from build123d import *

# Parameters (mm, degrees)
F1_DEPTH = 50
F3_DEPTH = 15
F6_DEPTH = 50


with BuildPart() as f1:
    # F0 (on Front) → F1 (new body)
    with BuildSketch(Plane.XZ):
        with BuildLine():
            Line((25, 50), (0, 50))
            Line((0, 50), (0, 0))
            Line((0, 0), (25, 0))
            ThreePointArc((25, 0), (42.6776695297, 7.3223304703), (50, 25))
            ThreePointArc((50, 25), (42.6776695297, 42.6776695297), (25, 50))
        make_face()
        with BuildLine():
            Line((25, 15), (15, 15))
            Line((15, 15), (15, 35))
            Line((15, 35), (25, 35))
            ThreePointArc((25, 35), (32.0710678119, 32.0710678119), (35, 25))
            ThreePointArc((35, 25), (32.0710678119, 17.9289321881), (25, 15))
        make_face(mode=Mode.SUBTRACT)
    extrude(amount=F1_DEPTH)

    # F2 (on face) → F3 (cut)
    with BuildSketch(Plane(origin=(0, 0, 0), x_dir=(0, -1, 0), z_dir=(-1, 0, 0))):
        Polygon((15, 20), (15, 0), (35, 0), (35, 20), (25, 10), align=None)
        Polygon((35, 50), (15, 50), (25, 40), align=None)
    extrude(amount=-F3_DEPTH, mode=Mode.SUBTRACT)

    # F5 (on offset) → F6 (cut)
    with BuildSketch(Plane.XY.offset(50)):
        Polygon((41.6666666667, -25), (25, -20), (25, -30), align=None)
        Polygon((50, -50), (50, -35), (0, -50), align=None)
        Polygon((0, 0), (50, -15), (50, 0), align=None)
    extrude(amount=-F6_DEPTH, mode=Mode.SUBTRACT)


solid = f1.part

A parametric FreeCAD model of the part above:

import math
import FreeCAD as App
import Part
import Sketcher
from FreeCAD import Vector
Q = App.Units.Quantity


def add_polygon(sketch, points):
    """Adds a closed chain of lines whose ends are joined by coincident constraints."""
    first, n = sketch.GeometryCount, len(points)
    for a, b in zip(points, points[1:] + points[:1]):
        sketch.addGeometry(Part.LineSegment(App.Vector(*a, 0), App.Vector(*b, 0)), False)
    for i in range(n):
        sketch.addConstraint(Sketcher.Constraint("Coincident", first + i, 2, first + (i + 1) % n, 1))

doc = App.newDocument("Part")
body = doc.addObject("PartDesign::Body", "Body")

sketch1 = body.newObject("Sketcher::SketchObject", "Sketch")
sketch1.AttachmentSupport = (doc.getObject("XZ_Plane"), [""])
sketch1.MapMode = "FlatFace"
sketch1.addGeometry(Part.LineSegment(Vector(25, 50, 0), Vector(0, 50, 0)), False)
sketch1.addGeometry(Part.LineSegment(Vector(0, 50, 0), Vector(0, 0, 0)), False)
sketch1.addGeometry(Part.LineSegment(Vector(0, 0, 0), Vector(25, 0, 0)), False)
sketch1.addGeometry(Part.ArcOfCircle(Part.Circle(Vector(25, 25, 0), Vector(0, 0, 1), 25), math.radians(-90), math.radians(0)), False)
sketch1.addGeometry(Part.ArcOfCircle(Part.Circle(Vector(25, 25, 0), Vector(0, 0, 1), 25), math.radians(0), math.radians(90)), False)
sketch1.addGeometry(Part.ArcOfCircle(Part.Circle(Vector(25, 25, 0), Vector(0, 0, 1), 10), math.radians(-90), math.radians(0)), False)
sketch1.addGeometry(Part.LineSegment(Vector(25, 15, 0), Vector(15, 15, 0)), False)
sketch1.addGeometry(Part.LineSegment(Vector(15, 15, 0), Vector(15, 35, 0)), False)
sketch1.addGeometry(Part.LineSegment(Vector(15, 35, 0), Vector(25, 35, 0)), False)
sketch1.addGeometry(Part.ArcOfCircle(Part.Circle(Vector(25, 25, 0), Vector(0, 0, 1), 10), math.radians(0), math.radians(90)), False)
sketch1.addConstraint(Sketcher.Constraint("Coincident", 0, 2, 1, 1))
sketch1.addConstraint(Sketcher.Constraint("Coincident", 1, 2, 2, 1))
sketch1.addConstraint(Sketcher.Constraint("Tangent", 2, 2, 3, 1))
sketch1.addConstraint(Sketcher.Constraint("Tangent", 3, 2, 4, 1))
sketch1.addConstraint(Sketcher.Constraint("Tangent", 4, 2, 0, 1))
sketch1.addConstraint(Sketcher.Constraint("Tangent", 5, 1, 6, 1))
sketch1.addConstraint(Sketcher.Constraint("Coincident", 6, 2, 7, 1))
sketch1.addConstraint(Sketcher.Constraint("Coincident", 7, 2, 8, 1))
sketch1.addConstraint(Sketcher.Constraint("Tangent", 8, 2, 9, 2))
sketch1.addConstraint(Sketcher.Constraint("Tangent", 9, 1, 5, 2))
sketch1.addConstraint(Sketcher.Constraint("Horizontal", 0))
sketch1.addConstraint(Sketcher.Constraint("Vertical", 1))
sketch1.addConstraint(Sketcher.Constraint("Horizontal", 2))
sketch1.addConstraint(Sketcher.Constraint("Horizontal", 6))
sketch1.addConstraint(Sketcher.Constraint("Vertical", 7))
sketch1.addConstraint(Sketcher.Constraint("Horizontal", 8))
sketch1.addConstraint(Sketcher.Constraint("Coincident", 1, 2, -1, 1))
sketch1.addConstraint(Sketcher.Constraint("Coincident", 5, 3, 3, 3))
sketch1.addConstraint(Sketcher.Constraint("Equal", 3, 4))
sketch1.addConstraint(Sketcher.Constraint("Equal", 5, 9))
sketch1.addConstraint(Sketcher.Constraint("Horizontal", 9, 3, 3, 2))
sketch1.addConstraint(Sketcher.Constraint("Horizontal", 3, 2, 9, 1))
sketch1.addConstraint(Sketcher.Constraint("Radius", 3, Q("25 mm")))
sketch1.addConstraint(Sketcher.Constraint("Radius", 5, Q("10 mm")))
sketch1.addConstraint(Sketcher.Constraint("DistanceX", 0, 2, 0, 1, Q("25 mm")))
sketch1.addConstraint(Sketcher.Constraint("DistanceX", 6, 2, 6, 1, Q("10 mm")))
pad1 = body.newObject("PartDesign::Pad", "Pad")
pad1.Profile = sketch1
pad1.Length = 50

sketch2 = body.newObject("Sketcher::SketchObject", "Sketch001")
sketch2.AttachmentSupport = (doc.getObject("YZ_Plane"), [""])
sketch2.MapMode = "FlatFace"
add_polygon(sketch2, [(-15, 20), (-15, 0), (-35, 0), (-35, 20), (-25, 10)])
add_polygon(sketch2, [(-35, 50), (-15, 50), (-25, 40)])
sketch2.addConstraint(Sketcher.Constraint("Vertical", 0))
sketch2.addConstraint(Sketcher.Constraint("Horizontal", 1))
sketch2.addConstraint(Sketcher.Constraint("Vertical", 2))
sketch2.addConstraint(Sketcher.Constraint("Horizontal", 5))
sketch2.addConstraint(Sketcher.Constraint("PointOnObject", 0, 2, -1))
sketch2.addConstraint(Sketcher.Constraint("Perpendicular", 3, 4))
sketch2.addConstraint(Sketcher.Constraint("Parallel", 4, 6))
sketch2.addConstraint(Sketcher.Constraint("Perpendicular", 6, 7))
sketch2.addConstraint(Sketcher.Constraint("Horizontal", 2, 2, 4, 2))
sketch2.addConstraint(Sketcher.Constraint("Vertical", 4, 2, 5, 2))
sketch2.addConstraint(Sketcher.Constraint("Vertical", 3, 2, 6, 2))
sketch2.addConstraint(Sketcher.Constraint("Equal", 5, 0))
sketch2.addConstraint(Sketcher.Constraint("Equal", 3, 4))
sketch2.addConstraint(Sketcher.Constraint("DistanceX", 1, 2, 1, 1, Q("20 mm")))
sketch2.addConstraint(Sketcher.Constraint("DistanceX", 0, 2, -1, 1, Q("15 mm")))
sketch2.addConstraint(Sketcher.Constraint("DistanceY", -1, 1, 5, 2, Q("50 mm")))
pocket1 = body.newObject("PartDesign::Pocket", "Pocket")
pocket1.Profile = sketch2
pocket1.Length = 15
pocket1.Reversed = True

sketch3 = body.newObject("Sketcher::SketchObject", "Sketch002")
sketch3.AttachmentSupport = (doc.getObject("XY_Plane"), [""])
sketch3.MapMode = "FlatFace"
sketch3.AttachmentOffset = App.Placement(Vector(0, 0, 50), App.Rotation())
add_polygon(sketch3, [(41.666667, -25), (25, -20), (25, -30)])
add_polygon(sketch3, [(50, -50), (50, -35), (0, -50)])
add_polygon(sketch3, [(0, 0), (50, -15), (50, 0)])
sketch3.addConstraint(Sketcher.Constraint("Vertical", 1))
sketch3.addConstraint(Sketcher.Constraint("Vertical", 3))
sketch3.addConstraint(Sketcher.Constraint("Horizontal", 5))
sketch3.addConstraint(Sketcher.Constraint("Vertical", 7))
sketch3.addConstraint(Sketcher.Constraint("Horizontal", 8))
sketch3.addConstraint(Sketcher.Constraint("Coincident", 8, 2, -1, 1))
sketch3.addConstraint(Sketcher.Constraint("PointOnObject", 4, 2, -2))
sketch3.addConstraint(Sketcher.Constraint("Parallel", 2, 4))
sketch3.addConstraint(Sketcher.Constraint("Parallel", 0, 6))
sketch3.addConstraint(Sketcher.Constraint("Vertical", 5, 2, 6, 2))
sketch3.addConstraint(Sketcher.Constraint("Equal", 3, 7))
sketch3.addConstraint(Sketcher.Constraint("DistanceX", 5, 1, 5, 2, Q("50 mm")))
sketch3.addConstraint(Sketcher.Constraint("DistanceY", 1, 2, 1, 1, Q("10 mm")))
sketch3.addConstraint(Sketcher.Constraint("DistanceY", 3, 1, 3, 2, Q("15 mm")))
sketch3.addConstraint(Sketcher.Constraint("DistanceX", -1, 1, 0, 2, Q("25 mm")))
sketch3.addConstraint(Sketcher.Constraint("DistanceY", 0, 2, -1, 1, Q("20 mm")))
sketch3.addConstraint(Sketcher.Constraint("DistanceY", 3, 2, -1, 1, Q("35 mm")))
pocket2 = body.newObject("PartDesign::Pocket", "Pocket001")
pocket2.Profile = sketch3
pocket2.Length = 50

doc.recompute()
